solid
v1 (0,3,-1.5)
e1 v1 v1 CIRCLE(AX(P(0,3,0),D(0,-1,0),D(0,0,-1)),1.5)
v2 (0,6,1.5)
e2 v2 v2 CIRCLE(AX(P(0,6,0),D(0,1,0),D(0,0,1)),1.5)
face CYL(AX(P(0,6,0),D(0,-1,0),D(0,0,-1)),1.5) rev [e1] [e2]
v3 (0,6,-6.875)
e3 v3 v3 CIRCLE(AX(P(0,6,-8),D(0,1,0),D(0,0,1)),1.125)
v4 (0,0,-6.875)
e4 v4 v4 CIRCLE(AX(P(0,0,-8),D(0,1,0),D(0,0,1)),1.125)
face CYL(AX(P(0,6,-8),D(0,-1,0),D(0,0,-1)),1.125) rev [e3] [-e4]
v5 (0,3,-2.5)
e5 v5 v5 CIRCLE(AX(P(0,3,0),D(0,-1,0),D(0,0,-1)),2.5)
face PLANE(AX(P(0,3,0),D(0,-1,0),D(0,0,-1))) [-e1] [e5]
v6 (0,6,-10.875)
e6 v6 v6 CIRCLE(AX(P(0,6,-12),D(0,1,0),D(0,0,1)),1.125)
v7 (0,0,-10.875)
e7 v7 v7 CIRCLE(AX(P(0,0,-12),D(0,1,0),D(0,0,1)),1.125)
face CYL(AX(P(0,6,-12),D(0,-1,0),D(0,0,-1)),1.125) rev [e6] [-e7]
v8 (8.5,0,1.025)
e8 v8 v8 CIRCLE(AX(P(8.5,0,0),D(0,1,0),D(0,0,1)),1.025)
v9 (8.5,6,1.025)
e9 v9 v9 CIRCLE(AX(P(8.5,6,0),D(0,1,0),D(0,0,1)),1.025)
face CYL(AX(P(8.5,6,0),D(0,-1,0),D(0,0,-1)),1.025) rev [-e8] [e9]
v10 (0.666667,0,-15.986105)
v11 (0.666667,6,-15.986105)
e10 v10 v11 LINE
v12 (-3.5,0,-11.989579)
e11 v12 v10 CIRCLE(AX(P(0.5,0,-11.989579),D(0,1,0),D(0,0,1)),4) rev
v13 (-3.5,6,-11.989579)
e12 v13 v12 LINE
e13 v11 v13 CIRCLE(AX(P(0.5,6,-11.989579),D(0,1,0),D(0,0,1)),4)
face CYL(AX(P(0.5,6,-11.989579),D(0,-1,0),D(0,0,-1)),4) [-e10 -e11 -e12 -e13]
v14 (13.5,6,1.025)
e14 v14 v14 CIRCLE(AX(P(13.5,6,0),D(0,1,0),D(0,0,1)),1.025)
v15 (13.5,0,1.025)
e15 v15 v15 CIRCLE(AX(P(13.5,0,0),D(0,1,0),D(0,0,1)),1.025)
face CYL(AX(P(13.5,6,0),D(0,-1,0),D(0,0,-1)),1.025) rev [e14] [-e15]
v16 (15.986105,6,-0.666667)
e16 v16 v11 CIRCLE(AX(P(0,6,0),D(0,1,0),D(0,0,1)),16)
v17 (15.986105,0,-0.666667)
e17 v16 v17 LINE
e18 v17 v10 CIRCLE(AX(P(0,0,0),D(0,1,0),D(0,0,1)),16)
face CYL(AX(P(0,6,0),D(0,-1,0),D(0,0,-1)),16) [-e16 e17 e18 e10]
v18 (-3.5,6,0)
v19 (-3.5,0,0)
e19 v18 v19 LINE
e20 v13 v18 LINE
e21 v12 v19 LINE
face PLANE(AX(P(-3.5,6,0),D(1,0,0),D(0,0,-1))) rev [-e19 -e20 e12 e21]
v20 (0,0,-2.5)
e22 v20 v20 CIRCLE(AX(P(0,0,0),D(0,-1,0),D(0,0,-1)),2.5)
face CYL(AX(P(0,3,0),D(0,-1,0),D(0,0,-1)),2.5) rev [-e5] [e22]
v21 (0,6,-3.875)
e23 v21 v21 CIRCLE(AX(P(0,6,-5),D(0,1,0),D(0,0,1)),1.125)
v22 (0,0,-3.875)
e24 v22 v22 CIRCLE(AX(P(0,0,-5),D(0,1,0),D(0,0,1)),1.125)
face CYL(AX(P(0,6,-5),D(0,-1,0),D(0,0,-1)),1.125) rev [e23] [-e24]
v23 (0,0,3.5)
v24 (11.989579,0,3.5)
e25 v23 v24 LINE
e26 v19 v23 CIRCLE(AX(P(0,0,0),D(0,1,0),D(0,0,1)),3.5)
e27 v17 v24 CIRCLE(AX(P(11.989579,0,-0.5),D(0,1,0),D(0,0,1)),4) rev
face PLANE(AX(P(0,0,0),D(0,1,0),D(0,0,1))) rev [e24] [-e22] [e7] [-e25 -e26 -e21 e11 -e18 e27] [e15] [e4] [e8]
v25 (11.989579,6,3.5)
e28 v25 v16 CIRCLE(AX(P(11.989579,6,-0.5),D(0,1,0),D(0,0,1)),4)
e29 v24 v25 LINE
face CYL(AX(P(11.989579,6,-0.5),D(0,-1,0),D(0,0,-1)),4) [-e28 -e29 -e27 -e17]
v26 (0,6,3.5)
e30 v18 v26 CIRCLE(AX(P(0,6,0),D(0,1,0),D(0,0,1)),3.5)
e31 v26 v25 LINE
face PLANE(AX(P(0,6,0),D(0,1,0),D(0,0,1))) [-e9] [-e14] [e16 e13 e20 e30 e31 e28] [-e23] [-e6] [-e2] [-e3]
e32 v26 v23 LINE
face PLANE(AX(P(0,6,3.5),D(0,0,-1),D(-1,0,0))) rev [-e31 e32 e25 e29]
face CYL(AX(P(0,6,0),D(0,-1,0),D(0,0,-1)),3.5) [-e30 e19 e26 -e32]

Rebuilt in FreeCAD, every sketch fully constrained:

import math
import FreeCAD as App
import Part
import Sketcher
Q = App.Units.Quantity


def edges_at(feature, points):
    """Names of the edges that pass closest to the given points."""
    edges = feature.Shape.Edges
    near = lambda p: min(range(len(edges)), key=lambda i: edges[i].distToShape(Part.Vertex(*p))[0])
    return sorted({f"Edge{near(p) + 1}" for p in points})

doc = App.newDocument("Part")
body = doc.addObject("PartDesign::Body", "Body")

# Sketch on XZ plane
sketch1 = body.newObject("Sketcher::SketchObject", "Sketch")
sketch1.AttachmentSupport = (doc.getObject("XZ_Plane"), [""])
sketch1.MapMode = "FlatFace"
sketch1.addGeometry([
    Part.LineSegment(App.Vector(0, 3.5, 0), App.Vector(15.612495, 3.5, 0)),  # 0
    Part.ArcOfCircle(Part.Circle(App.Vector(0, 0, 0), App.Vector(0, 0, 1), 16), math.radians(-102.635625), math.radians(12.635625)),  # 1
    Part.LineSegment(App.Vector(-3.5, -15.612495, 0), App.Vector(-3.5, 0, 0)),  # 2
    Part.ArcOfCircle(Part.Circle(App.Vector(0, 0, 0), App.Vector(0, 0, 1), 3.5), math.radians(90), math.radians(180)),  # 3
    Part.Circle(App.Vector(0, 0, 0), App.Vector(0, 0, 1), 1.5),  # 4
    Part.Circle(App.Vector(0, -5, 0), App.Vector(0, 0, 1), 1.125),  # 5
    Part.Circle(App.Vector(8.5, 0, 0), App.Vector(0, 0, 1), 1.025),  # 6
    Part.Circle(App.Vector(13.5, 0, 0), App.Vector(0, 0, 1), 1.025),  # 7
    Part.Circle(App.Vector(0, -8, 0), App.Vector(0, 0, 1), 1.125),  # 8
    Part.Circle(App.Vector(0, -12, 0), App.Vector(0, 0, 1), 1.125),  # 9
], False)
sketch1.addConstraint([
    Sketcher.Constraint("Coincident", 0, 2, 1, 2),
    Sketcher.Constraint("Coincident", 1, 1, 2, 1),
    Sketcher.Constraint("Tangent", 2, 2, 3, 2),
    Sketcher.Constraint("Tangent", 3, 1, 0, 1),
    Sketcher.Constraint("Horizontal", 0),
    Sketcher.Constraint("Vertical", 2),
    Sketcher.Constraint("Coincident", 1, 3, -1, 1),
    Sketcher.Constraint("Coincident", 3, 3, -1, 1),
    Sketcher.Constraint("Coincident", 4, 3, -1, 1),
    Sketcher.Constraint("Equal", 6, 7),
    Sketcher.Constraint("Equal", 5, 8),
    Sketcher.Constraint("Equal", 8, 9),
    Sketcher.Constraint("PointOnObject", 5, 3, -2),
    Sketcher.Constraint("PointOnObject", 6, 3, -1),
    Sketcher.Constraint("PointOnObject", 7, 3, -1),
    Sketcher.Constraint("PointOnObject", 8, 3, -2),
    Sketcher.Constraint("PointOnObject", 9, 3, -2),
    Sketcher.Constraint("Diameter", 4, Q("3 mm")),
    Sketcher.Constraint("Radius", 1, Q("16 mm")),
    Sketcher.Constraint("Radius", 3, Q("3.5 mm")),
    Sketcher.Constraint("Diameter", 5, Q("2.25 mm")),
    Sketcher.Constraint("Diameter", 6, Q("2.05 mm")),
    Sketcher.Constraint("DistanceY", 5, 3, -1, 1, Q("5 mm")),
    Sketcher.Constraint("DistanceY", 8, 3, -1, 1, Q("8 mm")),
    Sketcher.Constraint("DistanceY", 9, 3, -1, 1, Q("12 mm")),
    Sketcher.Constraint("DistanceX", 6, 3, 7, 3, Q("5 mm")),
    Sketcher.Constraint("DistanceX", -1, 1, 6, 3, Q("8.5 mm")),
])
pad1 = body.newObject("PartDesign::Pad", "Pad")
pad1.Profile = sketch1
pad1.Length = 6
pad1.Reversed = True

# Sketch on XZ plane
sketch2 = body.newObject("Sketcher::SketchObject", "Sketch001")
sketch2.AttachmentSupport = (doc.getObject("XZ_Plane"), [""])
sketch2.MapMode = "FlatFace"
sketch2.addGeometry(Part.Circle(App.Vector(0, 0, 0), App.Vector(0, 0, 1), 2.5), False)
sketch2.addConstraint([
    Sketcher.Constraint("Coincident", 0, 3, -1, 1),
    Sketcher.Constraint("Diameter", 0, Q("5 mm")),
])
pocket1 = body.newObject("PartDesign::Pocket", "Pocket")
pocket1.Profile = sketch2
pocket1.Length = 3
doc.recompute()

fillet = body.newObject("PartDesign::Fillet", "Fillet")
fillet.Base = (pocket1, edges_at(pocket1, [(15.612, 3, 3.5), (-3.5, 3, -15.612)]))
fillet.Radius = 4

doc.recompute()
